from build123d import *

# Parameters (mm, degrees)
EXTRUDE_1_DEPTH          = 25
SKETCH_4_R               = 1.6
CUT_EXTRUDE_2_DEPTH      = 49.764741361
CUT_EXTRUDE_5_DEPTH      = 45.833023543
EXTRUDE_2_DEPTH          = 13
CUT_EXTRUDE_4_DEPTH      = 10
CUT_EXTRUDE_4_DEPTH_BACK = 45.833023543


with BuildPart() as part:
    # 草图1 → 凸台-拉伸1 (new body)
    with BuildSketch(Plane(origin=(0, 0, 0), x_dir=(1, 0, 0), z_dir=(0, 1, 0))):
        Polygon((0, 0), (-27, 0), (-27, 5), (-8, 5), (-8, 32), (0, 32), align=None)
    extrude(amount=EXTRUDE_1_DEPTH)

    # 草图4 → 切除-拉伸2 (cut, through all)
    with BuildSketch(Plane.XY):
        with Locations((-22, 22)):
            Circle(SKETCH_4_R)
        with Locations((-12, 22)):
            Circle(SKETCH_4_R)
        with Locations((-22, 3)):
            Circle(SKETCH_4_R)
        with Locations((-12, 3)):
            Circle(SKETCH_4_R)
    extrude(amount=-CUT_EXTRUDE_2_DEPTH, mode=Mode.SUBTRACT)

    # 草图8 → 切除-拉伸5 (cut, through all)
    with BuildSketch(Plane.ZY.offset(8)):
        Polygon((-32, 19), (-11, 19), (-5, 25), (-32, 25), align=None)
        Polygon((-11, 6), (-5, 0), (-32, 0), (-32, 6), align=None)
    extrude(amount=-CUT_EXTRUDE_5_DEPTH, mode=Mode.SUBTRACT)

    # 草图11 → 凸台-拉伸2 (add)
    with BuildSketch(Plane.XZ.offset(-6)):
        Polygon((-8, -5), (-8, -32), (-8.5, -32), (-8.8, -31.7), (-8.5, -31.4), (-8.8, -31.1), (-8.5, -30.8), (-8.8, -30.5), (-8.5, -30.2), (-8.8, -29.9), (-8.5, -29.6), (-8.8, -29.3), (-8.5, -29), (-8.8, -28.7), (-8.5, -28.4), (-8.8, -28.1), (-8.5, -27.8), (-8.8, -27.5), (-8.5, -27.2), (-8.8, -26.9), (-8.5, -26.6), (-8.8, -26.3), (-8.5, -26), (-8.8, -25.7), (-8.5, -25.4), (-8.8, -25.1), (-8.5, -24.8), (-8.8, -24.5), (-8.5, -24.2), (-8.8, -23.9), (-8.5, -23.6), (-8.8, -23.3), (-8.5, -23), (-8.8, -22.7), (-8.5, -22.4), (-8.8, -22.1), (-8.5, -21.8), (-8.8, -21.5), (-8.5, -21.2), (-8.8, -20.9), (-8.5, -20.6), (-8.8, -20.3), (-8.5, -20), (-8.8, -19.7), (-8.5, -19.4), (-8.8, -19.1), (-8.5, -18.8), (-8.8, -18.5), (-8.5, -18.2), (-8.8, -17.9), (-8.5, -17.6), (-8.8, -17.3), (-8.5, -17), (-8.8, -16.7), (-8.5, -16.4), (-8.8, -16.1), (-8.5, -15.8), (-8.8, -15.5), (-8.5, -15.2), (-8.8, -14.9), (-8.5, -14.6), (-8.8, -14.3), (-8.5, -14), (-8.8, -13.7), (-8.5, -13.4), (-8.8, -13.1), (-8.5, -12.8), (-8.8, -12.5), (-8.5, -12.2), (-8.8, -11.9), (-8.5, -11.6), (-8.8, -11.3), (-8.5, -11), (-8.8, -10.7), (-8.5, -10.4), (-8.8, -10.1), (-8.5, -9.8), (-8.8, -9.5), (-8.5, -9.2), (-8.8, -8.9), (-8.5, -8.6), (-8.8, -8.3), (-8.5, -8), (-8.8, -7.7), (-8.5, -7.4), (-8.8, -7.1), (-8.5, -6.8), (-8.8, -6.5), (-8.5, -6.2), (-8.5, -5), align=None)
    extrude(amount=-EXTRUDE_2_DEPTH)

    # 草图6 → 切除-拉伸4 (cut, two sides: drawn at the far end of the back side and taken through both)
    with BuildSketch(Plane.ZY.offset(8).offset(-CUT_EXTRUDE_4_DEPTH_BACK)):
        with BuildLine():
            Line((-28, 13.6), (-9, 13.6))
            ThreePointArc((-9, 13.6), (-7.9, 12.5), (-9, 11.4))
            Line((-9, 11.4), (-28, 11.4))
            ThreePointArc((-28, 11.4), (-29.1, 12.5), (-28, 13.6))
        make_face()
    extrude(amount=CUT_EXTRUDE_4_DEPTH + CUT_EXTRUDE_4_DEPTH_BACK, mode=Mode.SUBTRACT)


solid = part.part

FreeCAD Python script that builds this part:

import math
import FreeCAD as App
import Part
import Sketcher
from FreeCAD import Vector

doc = App.newDocument("Part")
body = doc.addObject("PartDesign::Body", "Body")

# Sketch on XZ plane
sketch1 = body.newObject("Sketcher::SketchObject", "Sketch")
sketch1.AttachmentSupport = (doc.getObject("XZ_Plane"), [""])
sketch1.MapMode = "FlatFace"
sketch1.addGeometry(Part.LineSegment(Vector(-27, 0, 0), Vector(0, 0, 0)), False)
sketch1.addGeometry(Part.LineSegment(Vector(0, 0, 0), Vector(0, -32, 0)), False)
sketch1.addGeometry(Part.LineSegment(Vector(0, -32, 0), Vector(-8, -32, 0)), False)
sketch1.addGeometry(Part.LineSegment(Vector(-8, -32, 0), Vector(-8, -5, 0)), False)
sketch1.addGeometry(Part.LineSegment(Vector(-8, -5, 0), Vector(-27, -5, 0)), False)
sketch1.addGeometry(Part.LineSegment(Vector(-27, -5, 0), Vector(-27, 0, 0)), False)
sketch1.addConstraint(Sketcher.Constraint("Coincident", 0, 2, 1, 1))
sketch1.addConstraint(Sketcher.Constraint("Coincident", 1, 2, 2, 1))
sketch1.addConstraint(Sketcher.Constraint("Coincident", 2, 2, 3, 1))
sketch1.addConstraint(Sketcher.Constraint("Coincident", 3, 2, 4, 1))
sketch1.addConstraint(Sketcher.Constraint("Coincident", 4, 2, 5, 1))
sketch1.addConstraint(Sketcher.Constraint("Coincident", 5, 2, 0, 1))
sketch1.addConstraint(Sketcher.Constraint("Horizontal", 0))
sketch1.addConstraint(Sketcher.Constraint("Vertical", 1))
sketch1.addConstraint(Sketcher.Constraint("Horizontal", 2))
sketch1.addConstraint(Sketcher.Constraint("Vertical", 3))
sketch1.addConstraint(Sketcher.Constraint("Horizontal", 4))
sketch1.addConstraint(Sketcher.Constraint("Vertical", 5))
sketch1.addConstraint(Sketcher.Constraint("Coincident", 0, 2, -1, 1))
sketch1.addConstraint(Sketcher.Constraint("Equal", 0, 3))
sketch1.addConstraint(Sketcher.Constraint("DistanceX", 0, 1, 0, 2, 27.0))
sketch1.addConstraint(Sketcher.Constraint("DistanceX", 2, 2, 2, 1, 8.0))
sketch1.addConstraint(Sketcher.Constraint("DistanceY", 1, 2, 1, 1, 32.0))
pad1 = body.newObject("PartDesign::Pad", "Pad")
pad1.Profile = sketch1
pad1.Length = 25
pad1.Reversed = True

# Sketch on XY plane
sketch2 = body.newObject("Sketcher::SketchObject", "Sketch001")
sketch2.AttachmentSupport = (doc.getObject("XY_Plane"), [""])
sketch2.MapMode = "FlatFace"
sketch2.addGeometry(Part.Circle(Vector(-22, 22, 0), Vector(0, 0, 1), 1.6), False)
sketch2.addGeometry(Part.Circle(Vector(-12, 22, 0), Vector(0, 0, 1), 1.6), False)
sketch2.addGeometry(Part.Circle(Vector(-22, 3, 0), Vector(0, 0, 1), 1.6), False)
sketch2.addGeometry(Part.Circle(Vector(-12, 3, 0), Vector(0, 0, 1), 1.6), False)
sketch2.addConstraint(Sketcher.Constraint("Equal", 0, 1))
sketch2.addConstraint(Sketcher.Constraint("Equal", 1, 2))
sketch2.addConstraint(Sketcher.Constraint("Equal", 2, 3))
sketch2.addConstraint(Sketcher.Constraint("Horizontal", 0, 3, 1, 3))
sketch2.addConstraint(Sketcher.Constraint("Horizontal", 2, 3, 3, 3))
sketch2.addConstraint(Sketcher.Constraint("Vertical", 0, 3, 2, 3))
sketch2.addConstraint(Sketcher.Constraint("Vertical", 1, 3, 3, 3))
sketch2.addConstraint(Sketcher.Constraint("Diameter", 0, 3.2))
sketch2.addConstraint(Sketcher.Constraint("DistanceX", 0, 3, -1, 1, 22.0))
sketch2.addConstraint(Sketcher.Constraint("DistanceY", -1, 1, 0, 3, 22.0))
sketch2.addConstraint(Sketcher.Constraint("DistanceX", 1, 3, -1, 1, 12.0))
sketch2.addConstraint(Sketcher.Constraint("DistanceY", -1, 1, 2, 3, 3.0))
pocket1 = body.newObject("PartDesign::Pocket", "Pocket")
pocket1.Profile = sketch2
pocket1.Type = "ThroughAll"

# Sketch on YZ plane
sketch3 = body.newObject("Sketcher::SketchObject", "Sketch002")
sketch3.AttachmentSupport = (doc.getObject("YZ_Plane"), [""])
sketch3.MapMode = "FlatFace"
sketch3.AttachmentOffset = App.Placement(Vector(0, 0, -8), App.Rotation())
sketch3.addGeometry(Part.LineSegment(Vector(19, -32, 0), Vector(19, -11, 0)), False)
sketch3.addGeometry(Part.LineSegment(Vector(19, -11, 0), Vector(25, -5, 0)), False)
sketch3.addGeometry(Part.LineSegment(Vector(25, -5, 0), Vector(25, -32, 0)), False)
sketch3.addGeometry(Part.LineSegment(Vector(25, -32, 0), Vector(19, -32, 0)), False)
sketch3.addGeometry(Part.LineSegment(Vector(0, -5, 0), Vector(6, -11, 0)), False)
sketch3.addGeometry(Part.LineSegment(Vector(6, -11, 0), Vector(6, -32, 0)), False)
sketch3.addGeometry(Part.LineSegment(Vector(6, -32, 0), Vector(0, -32, 0)), False)
sketch3.addGeometry(Part.LineSegment(Vector(0, -32, 0), Vector(0, -5, 0)), False)
sketch3.addConstraint(Sketcher.Constraint("Coincident", 0, 2, 1, 1))
sketch3.addConstraint(Sketcher.Constraint("Coincident", 1, 2, 2, 1))
sketch3.addConstraint(Sketcher.Constraint("Coincident", 2, 2, 3, 1))
sketch3.addConstraint(Sketcher.Constraint("Coincident", 3, 2, 0, 1))
sketch3.addConstraint(Sketcher.Constraint("Coincident", 4, 2, 5, 1))
sketch3.addConstraint(Sketcher.Constraint("Coincident", 5, 2, 6, 1))
sketch3.addConstraint(Sketcher.Constraint("Coincident", 6, 2, 7, 1))
sketch3.addConstraint(Sketcher.Constraint("Coincident", 7, 2, 4, 1))
sketch3.addConstraint(Sketcher.Constraint("Vertical", 0))
sketch3.addConstraint(Sketcher.Constraint("Vertical", 2))
sketch3.addConstraint(Sketcher.Constraint("Horizontal", 3))
sketch3.addConstraint(Sketcher.Constraint("Vertical", 5))
sketch3.addConstraint(Sketcher.Constraint("Horizontal", 6))
sketch3.addConstraint(Sketcher.Constraint("Vertical", 7))
sketch3.addConstraint(Sketcher.Constraint("PointOnObject", 6, 2, -2))
sketch3.addConstraint(Sketcher.Constraint("Perpendicular", 1, 4))
sketch3.addConstraint(Sketcher.Constraint("Horizontal", 0, 2, 4, 2))
sketch3.addConstraint(Sketcher.Constraint("Horizontal", 3, 2, 5, 2))
sketch3.addConstraint(Sketcher.Constraint("Horizontal", 1, 2, 7, 2))
sketch3.addConstraint(Sketcher.Constraint("Equal", 3, 6))
sketch3.addConstraint(Sketcher.Constraint("DistanceX", 3, 2, 3, 1, 6.0))
sketch3.addConstraint(Sketcher.Constraint("DistanceY", 0, 1, 0, 2, 21.0))
sketch3.addConstraint(Sketcher.Constraint("DistanceX", -1, 1, 0, 2, 19.0))
sketch3.addConstraint(Sketcher.Constraint("DistanceY", 0, 2, -1, 1, 11.0))
pocket2 = body.newObject("PartDesign::Pocket", "Pocket001")
pocket2.Profile = sketch3
pocket2.Type = "ThroughAll"
pocket2.Reversed = True

# Sketch on XZ plane
sketch4 = body.newObject("Sketcher::SketchObject", "Sketch003")
sketch4.AttachmentSupport = (doc.getObject("XZ_Plane"), [""])
sketch4.MapMode = "FlatFace"
sketch4.AttachmentOffset = App.Placement(Vector(0, 0, -6), App.Rotation())
sketch4.addGeometry(Part.LineSegment(Vector(-8, -32, 0), Vector(-8, -5, 0)), False)
sketch4.addGeometry(Part.LineSegment(Vector(-8, -5, 0), Vector(-8.5, -5, 0)), False)
sketch4.addGeometry(Part.LineSegment(Vector(-8.5, -5, 0), Vector(-8.5, -6.2, 0)), False)
sketch4.addGeometry(Part.LineSegment(Vector(-8.5, -6.2, 0), Vector(-8.8, -6.5, 0)), False)
sketch4.addGeometry(Part.LineSegment(Vector(-8.8, -6.5, 0), Vector(-8.5, -6.8, 0)), False)
sketch4.addGeometry(Part.LineSegment(Vector(-8.5, -6.8, 0), Vector(-8.8, -7.1, 0)), False)
sketch4.addGeometry(Part.LineSegment(Vector(-8.8, -7.1, 0), Vector(-8.5, -7.4, 0)), False)
sketch4.addGeometry(Part.LineSegment(Vector(-8.5, -7.4, 0), Vector(-8.8, -7.7, 0)), False)
sketch4.addGeometry(Part.LineSegment(Vector(-8.8, -7.7, 0), Vector(-8.5, -8, 0)), False)
sketch4.addGeometry(Part.LineSegment(Vector(-8.5, -8, 0), Vector(-8.8, -8.3, 0)), False)
sketch4.addGeometry(Part.LineSegment(Vector(-8.8, -8.3, 0), Vector(-8.5, -8.6, 0)), False)
sketch4.addGeometry(Part.LineSegment(Vector(-8.5, -8.6, 0), Vector(-8.8, -8.9, 0)), False)
sketch4.addGeometry(Part.LineSegment(Vector(-8.8, -8.9, 0), Vector(-8.5, -9.2, 0)), False)
sketch4.addGeometry(Part.LineSegment(Vector(-8.5, -9.2, 0), Vector(-8.8, -9.5, 0)), False)
sketch4.addGeometry(Part.LineSegment(Vector(-8.8, -9.5, 0), Vector(-8.5, -9.8, 0)), False)
sketch4.addGeometry(Part.LineSegment(Vector(-8.5, -9.8, 0), Vector(-8.8, -10.1, 0)), False)
sketch4.addGeometry(Part.LineSegment(Vector(-8.8, -10.1, 0), Vector(-8.5, -10.4, 0)), False)
sketch4.addGeometry(Part.LineSegment(Vector(-8.5, -10.4, 0), Vector(-8.8, -10.7, 0)), False)
sketch4.addGeometry(Part.LineSegment(Vector(-8.8, -10.7, 0), Vector(-8.5, -11, 0)), False)
sketch4.addGeometry(Part.LineSegment(Vector(-8.5, -11, 0), Vector(-8.8, -11.3, 0)), False)
sketch4.addGeometry(Part.LineSegment(Vector(-8.8, -11.3, 0), Vector(-8.5, -11.6, 0)), False)
sketch4.addGeometry(Part.LineSegment(Vector(-8.5, -11.6, 0), Vector(-8.8, -11.9, 0)), False)
sketch4.addGeometry(Part.LineSegment(Vector(-8.8, -11.9, 0), Vector(-8.5, -12.2, 0)), False)
sketch4.addGeometry(Part.LineSegment(Vector(-8.5, -12.2, 0), Vector(-8.8, -12.5, 0)), False)
sketch4.addGeometry(Part.LineSegment(Vector(-8.8, -12.5, 0), Vector(-8.5, -12.8, 0)), False)
sketch4.addGeometry(Part.LineSegment(Vector(-8.5, -12.8, 0), Vector(-8.8, -13.1, 0)), False)
sketch4.addGeometry(Part.LineSegment(Vector(-8.8, -13.1, 0), Vector(-8.5, -13.4, 0)), False)
sketch4.addGeometry(Part.LineSegment(Vector(-8.5, -13.4, 0), Vector(-8.8, -13.7, 0)), False)
sketch4.addGeometry(Part.LineSegment(Vector(-8.8, -13.7, 0), Vector(-8.5, -14, 0)), False)
sketch4.addGeometry(Part.LineSegment(Vector(-8.5, -14, 0), Vector(-8.8, -14.3, 0)), False)
sketch4.addGeometry(Part.LineSegment(Vector(-8.8, -14.3, 0), Vector(-8.5, -14.6, 0)), False)
sketch4.addGeometry(Part.LineSegment(Vector(-8.5, -14.6, 0), Vector(-8.8, -14.9, 0)), False)
sketch4.addGeometry(Part.LineSegment(Vector(-8.8, -14.9, 0), Vector(-8.5, -15.2, 0)), False)
sketch4.addGeometry(Part.LineSegment(Vector(-8.5, -15.2, 0), Vector(-8.8, -15.5, 0)), False)
sketch4.addGeometry(Part.LineSegment(Vector(-8.8, -15.5, 0), Vector(-8.5, -15.8, 0)), False)
sketch4.addGeometry(Part.LineSegment(Vector(-8.5, -15.8, 0), Vector(-8.8, -16.1, 0)), False)
sketch4.addGeometry(Part.LineSegment(Vector(-8.8, -16.1, 0), Vector(-8.5, -16.4, 0)), False)
sketch4.addGeometry(Part.LineSegment(Vector(-8.5, -16.4, 0), Vector(-8.8, -16.7, 0)), False)
sketch4.addGeometry(Part.LineSegment(Vector(-8.8, -16.7, 0), Vector(-8.5, -17, 0)), False)
sketch4.addGeometry(Part.LineSegment(Vector(-8.5, -17, 0), Vector(-8.8, -17.3, 0)), False)
sketch4.addGeometry(Part.LineSegment(Vector(-8.8, -17.3, 0), Vector(-8.5, -17.6, 0)), False)
sketch4.addGeometry(Part.LineSegment(Vector(-8.5, -17.6, 0), Vector(-8.8, -17.9, 0)), False)
sketch4.addGeometry(Part.LineSegment(Vector(-8.8, -17.9, 0), Vector(-8.5, -18.2, 0)), False)
sketch4.addGeometry(Part.LineSegment(Vector(-8.5, -18.2, 0), Vector(-8.8, -18.5, 0)), False)
sketch4.addGeometry(Part.LineSegment(Vector(-8.8, -18.5, 0), Vector(-8.5, -18.8, 0)), False)
sketch4.addGeometry(Part.LineSegment(Vector(-8.5, -18.8, 0), Vector(-8.8, -19.1, 0)), False)
sketch4.addGeometry(Part.LineSegment(Vector(-8.8, -19.1, 0), Vector(-8.5, -19.4, 0)), False)
sketch4.addGeometry(Part.LineSegment(Vector(-8.5, -19.4, 0), Vector(-8.8, -19.7, 0)), False)
sketch4.addGeometry(Part.LineSegment(Vector(-8.8, -19.7, 0), Vector(-8.5, -20, 0)), False)
sketch4.addGeometry(Part.LineSegment(Vector(-8.5, -20, 0), Vector(-8.8, -20.3, 0)), False)
sketch4.addGeometry(Part.LineSegment(Vector(-8.8, -20.3, 0), Vector(-8.5, -20.6, 0)), False)
sketch4.addGeometry(Part.LineSegment(Vector(-8.5, -20.6, 0), Vector(-8.8, -20.9, 0)), False)
sketch4.addGeometry(Part.LineSegment(Vector(-8.8, -20.9, 0), Vector(-8.5, -21.2, 0)), False)
sketch4.addGeometry(Part.LineSegment(Vector(-8.5, -21.2, 0), Vector(-8.8, -21.5, 0)), False)
sketch4.addGeometry(Part.LineSegment(Vector(-8.8, -21.5, 0), Vector(-8.5, -21.8, 0)), False)
sketch4.addGeometry(Part.LineSegment(Vector(-8.5, -21.8, 0), Vector(-8.8, -22.1, 0)), False)
sketch4.addGeometry(Part.LineSegment(Vector(-8.8, -22.1, 0), Vector(-8.5, -22.4, 0)), False)
sketch4.addGeometry(Part.LineSegment(Vector(-8.5, -22.4, 0), Vector(-8.8, -22.7, 0)), False)
sketch4.addGeometry(Part.LineSegment(Vector(-8.8, -22.7, 0), Vector(-8.5, -23, 0)), False)
sketch4.addGeometry(Part.LineSegment(Vector(-8.5, -23, 0), Vector(-8.8, -23.3, 0)), False)
sketch4.addGeometry(Part.LineSegment(Vector(-8.8, -23.3, 0), Vector(-8.5, -23.6, 0)), False)
sketch4.addGeometry(Part.LineSegment(Vector(-8.5, -23.6, 0), Vector(-8.8, -23.9, 0)), False)
sketch4.addGeometry(Part.LineSegment(Vector(-8.8, -23.9, 0), Vector(-8.5, -24.2, 0)), False)
sketch4.addGeometry(Part.LineSegment(Vector(-8.5, -24.2, 0), Vector(-8.8, -24.5, 0)), False)
sketch4.addGeometry(Part.LineSegment(Vector(-8.8, -24.5, 0), Vector(-8.5, -24.8, 0)), False)
sketch4.addGeometry(Part.LineSegment(Vector(-8.5, -24.8, 0), Vector(-8.8, -25.1, 0)), False)
sketch4.addGeometry(Part.LineSegment(Vector(-8.8, -25.1, 0), Vector(-8.5, -25.4, 0)), False)
sketch4.addGeometry(Part.LineSegment(Vector(-8.5, -25.4, 0), Vector(-8.8, -25.7, 0)), False)
sketch4.addGeometry(Part.LineSegment(Vector(-8.8, -25.7, 0), Vector(-8.5, -26, 0)), False)
sketch4.addGeometry(Part.LineSegment(Vector(-8.5, -26, 0), Vector(-8.8, -26.3, 0)), False)
sketch4.addGeometry(Part.LineSegment(Vector(-8.8, -26.3, 0), Vector(-8.5, -26.6, 0)), False)
sketch4.addGeometry(Part.LineSegment(Vector(-8.5, -26.6, 0), Vector(-8.8, -26.9, 0)), False)
sketch4.addGeometry(Part.LineSegment(Vector(-8.8, -26.9, 0), Vector(-8.5, -27.2, 0)), False)
sketch4.addGeometry(Part.LineSegment(Vector(-8.5, -27.2, 0), Vector(-8.8, -27.5, 0)), False)
sketch4.addGeometry(Part.LineSegment(Vector(-8.8, -27.5, 0), Vector(-8.5, -27.8, 0)), False)
sketch4.addGeometry(Part.LineSegment(Vector(-8.5, -27.8, 0), Vector(-8.8, -28.1, 0)), False)
sketch4.addGeometry(Part.LineSegment(Vector(-8.8, -28.1, 0), Vector(-8.5, -28.4, 0)), False)
sketch4.addGeometry(Part.LineSegment(Vector(-8.5, -28.4, 0), Vector(-8.8, -28.7, 0)), False)
sketch4.addGeometry(Part.LineSegment(Vector(-8.8, -28.7, 0), Vector(-8.5, -29, 0)), False)
sketch4.addGeometry(Part.LineSegment(Vector(-8.5, -29, 0), Vector(-8.8, -29.3, 0)), False)
sketch4.addGeometry(Part.LineSegment(Vector(-8.8, -29.3, 0), Vector(-8.5, -29.6, 0)), False)
sketch4.addGeometry(Part.LineSegment(Vector(-8.5, -29.6, 0), Vector(-8.8, -29.9, 0)), False)
sketch4.addGeometry(Part.LineSegment(Vector(-8.8, -29.9, 0), Vector(-8.5, -30.2, 0)), False)
sketch4.addGeometry(Part.LineSegment(Vector(-8.5, -30.2, 0), Vector(-8.8, -30.5, 0)), False)
sketch4.addGeometry(Part.LineSegment(Vector(-8.8, -30.5, 0), Vector(-8.5, -30.8, 0)), False)
sketch4.addGeometry(Part.LineSegment(Vector(-8.5, -30.8, 0), Vector(-8.8, -31.1, 0)), False)
sketch4.addGeometry(Part.LineSegment(Vector(-8.8, -31.1, 0), Vector(-8.5, -31.4, 0)), False)
sketch4.addGeometry(Part.LineSegment(Vector(-8.5, -31.4, 0), Vector(-8.8, -31.7, 0)), False)
sketch4.addGeometry(Part.LineSegment(Vector(-8.8, -31.7, 0), Vector(-8.5, -32, 0)), False)
sketch4.addGeometry(Part.LineSegment(Vector(-8.5, -32, 0), Vector(-8, -32, 0)), False)
sketch4.addConstraint(Sketcher.Constraint("Coincident", 0, 2, 1, 1))
sketch4.addConstraint(Sketcher.Constraint("Coincident", 1, 2, 2, 1))
sketch4.addConstraint(Sketcher.Constraint("Coincident", 2, 2, 3, 1))
sketch4.addConstraint(Sketcher.Constraint("Coincident", 3, 2, 4, 1))
sketch4.addConstraint(Sketcher.Constraint("Coincident", 4, 2, 5, 1))
sketch4.addConstraint(Sketcher.Constraint("Coincident", 5, 2, 6, 1))
sketch4.addConstraint(Sketcher.Constraint("Coincident", 6, 2, 7, 1))
sketch4.addConstraint(Sketcher.Constraint("Coincident", 7, 2, 8, 1))
sketch4.addConstraint(Sketcher.Constraint("Coincident", 8, 2, 9, 1))
sketch4.addConstraint(Sketcher.Constraint("Coincident", 9, 2, 10, 1))
sketch4.addConstraint(Sketcher.Constraint("Coincident", 10, 2, 11, 1))
sketch4.addConstraint(Sketcher.Constraint("Coincident", 11, 2, 12, 1))
sketch4.addConstraint(Sketcher.Constraint("Coincident", 12, 2, 13, 1))
sketch4.addConstraint(Sketcher.Constraint("Coincident", 13, 2, 14, 1))
sketch4.addConstraint(Sketcher.Constraint("Coincident", 14, 2, 15, 1))
sketch4.addConstraint(Sketcher.Constraint("Coincident", 15, 2, 16, 1))
sketch4.addConstraint(Sketcher.Constraint("Coincident", 16, 2, 17, 1))
sketch4.addConstraint(Sketcher.Constraint("Coincident", 17, 2, 18, 1))
sketch4.addConstraint(Sketcher.Constraint("Coincident", 18, 2, 19, 1))
sketch4.addConstraint(Sketcher.Constraint("Coincident", 19, 2, 20, 1))
sketch4.addConstraint(Sketcher.Constraint("Coincident", 20, 2, 21, 1))
sketch4.addConstraint(Sketcher.Constraint("Coincident", 21, 2, 22, 1))
sketch4.addConstraint(Sketcher.Constraint("Coincident", 22, 2, 23, 1))
sketch4.addConstraint(Sketcher.Constraint("Coincident", 23, 2, 24, 1))
sketch4.addConstraint(Sketcher.Constraint("Coincident", 24, 2, 25, 1))
sketch4.addConstraint(Sketcher.Constraint("Coincident", 25, 2, 26, 1))
sketch4.addConstraint(Sketcher.Constraint("Coincident", 26, 2, 27, 1))
sketch4.addConstraint(Sketcher.Constraint("Coincident", 27, 2, 28, 1))
sketch4.addConstraint(Sketcher.Constraint("Coincident", 28, 2, 29, 1))
sketch4.addConstraint(Sketcher.Constraint("Coincident", 29, 2, 30, 1))
sketch4.addConstraint(Sketcher.Constraint("Coincident", 30, 2, 31, 1))
sketch4.addConstraint(Sketcher.Constraint("Coincident", 31, 2, 32, 1))
sketch4.addConstraint(Sketcher.Constraint("Coincident", 32, 2, 33, 1))
sketch4.addConstraint(Sketcher.Constraint("Coincident", 33, 2, 34, 1))
sketch4.addConstraint(Sketcher.Constraint("Coincident", 34, 2, 35, 1))
sketch4.addConstraint(Sketcher.Constraint("Coincident", 35, 2, 36, 1))
sketch4.addConstraint(Sketcher.Constraint("Coincident", 36, 2, 37, 1))
sketch4.addConstraint(Sketcher.Constraint("Coincident", 37, 2, 38, 1))
sketch4.addConstraint(Sketcher.Constraint("Coincident", 38, 2, 39, 1))
sketch4.addConstraint(Sketcher.Constraint("Coincident", 39, 2, 40, 1))
sketch4.addConstraint(Sketcher.Constraint("Coincident", 40, 2, 41, 1))
sketch4.addConstraint(Sketcher.Constraint("Coincident", 41, 2, 42, 1))
sketch4.addConstraint(Sketcher.Constraint("Coincident", 42, 2, 43, 1))
sketch4.addConstraint(Sketcher.Constraint("Coincident", 43, 2, 44, 1))
sketch4.addConstraint(Sketcher.Constraint("Coincident", 44, 2, 45, 1))
sketch4.addConstraint(Sketcher.Constraint("Coincident", 45, 2, 46, 1))
sketch4.addConstraint(Sketcher.Constraint("Coincident", 46, 2, 47, 1))
sketch4.addConstraint(Sketcher.Constraint("Coincident", 47, 2, 48, 1))
sketch4.addConstraint(Sketcher.Constraint("Coincident", 48, 2, 49, 1))
sketch4.addConstraint(Sketcher.Constraint("Coincident", 49, 2, 50, 1))
sketch4.addConstraint(Sketcher.Constraint("Coincident", 50, 2, 51, 1))
sketch4.addConstraint(Sketcher.Constraint("Coincident", 51, 2, 52, 1))
sketch4.addConstraint(Sketcher.Constraint("Coincident", 52, 2, 53, 1))
sketch4.addConstraint(Sketcher.Constraint("Coincident", 53, 2, 54, 1))
sketch4.addConstraint(Sketcher.Constraint("Coincident", 54, 2, 55, 1))
sketch4.addConstraint(Sketcher.Constraint("Coincident", 55, 2, 56, 1))
sketch4.addConstraint(Sketcher.Constraint("Coincident", 56, 2, 57, 1))
sketch4.addConstraint(Sketcher.Constraint("Coincident", 57, 2, 58, 1))
sketch4.addConstraint(Sketcher.Constraint("Coincident", 58, 2, 59, 1))
sketch4.addConstraint(Sketcher.Constraint("Coincident", 59, 2, 60, 1))
sketch4.addConstraint(Sketcher.Constraint("Coincident", 60, 2, 61, 1))
sketch4.addConstraint(Sketcher.Constraint("Coincident", 61, 2, 62, 1))
sketch4.addConstraint(Sketcher.Constraint("Coincident", 62, 2, 63, 1))
sketch4.addConstraint(Sketcher.Constraint("Coincident", 63, 2, 64, 1))
sketch4.addConstraint(Sketcher.Constraint("Coincident", 64, 2, 65, 1))
sketch4.addConstraint(Sketcher.Constraint("Coincident", 65, 2, 66, 1))
sketch4.addConstraint(Sketcher.Constraint("Coincident", 66, 2, 67, 1))
sketch4.addConstraint(Sketcher.Constraint("Coincident", 67, 2, 68, 1))
sketch4.addConstraint(Sketcher.Constraint("Coincident", 68, 2, 69, 1))
sketch4.addConstraint(Sketcher.Constraint("Coincident", 69, 2, 70, 1))
sketch4.addConstraint(Sketcher.Constraint("Coincident", 70, 2, 71, 1))
sketch4.addConstraint(Sketcher.Constraint("Coincident", 71, 2, 72, 1))
sketch4.addConstraint(Sketcher.Constraint("Coincident", 72, 2, 73, 1))
sketch4.addConstraint(Sketcher.Constraint("Coincident", 73, 2, 74, 1))
sketch4.addConstraint(Sketcher.Constraint("Coincident", 74, 2, 75, 1))
sketch4.addConstraint(Sketcher.Constraint("Coincident", 75, 2, 76, 1))
sketch4.addConstraint(Sketcher.Constraint("Coincident", 76, 2, 77, 1))
sketch4.addConstraint(Sketcher.Constraint("Coincident", 77, 2, 78, 1))
sketch4.addConstraint(Sketcher.Constraint("Coincident", 78, 2, 79, 1))
sketch4.addConstraint(Sketcher.Constraint("Coincident", 79, 2, 80, 1))
sketch4.addConstraint(Sketcher.Constraint("Coincident", 80, 2, 81, 1))
sketch4.addConstraint(Sketcher.Constraint("Coincident", 81, 2, 82, 1))
sketch4.addConstraint(Sketcher.Constraint("Coincident", 82, 2, 83, 1))
sketch4.addConstraint(Sketcher.Constraint("Coincident", 83, 2, 84, 1))
sketch4.addConstraint(Sketcher.Constraint("Coincident", 84, 2, 85, 1))
sketch4.addConstraint(Sketcher.Constraint("Coincident", 85, 2, 86, 1))
sketch4.addConstraint(Sketcher.Constraint("Coincident", 86, 2, 87, 1))
sketch4.addConstraint(Sketcher.Constraint("Coincident", 87, 2, 88, 1))
sketch4.addConstraint(Sketcher.Constraint("Coincident", 88, 2, 89, 1))
sketch4.addConstraint(Sketcher.Constraint("Coincident", 89, 2, 0, 1))
sketch4.addConstraint(Sketcher.Constraint("Vertical", 0))
sketch4.addConstraint(Sketcher.Constraint("Horizontal", 1))
sketch4.addConstraint(Sketcher.Constraint("Vertical", 2))
sketch4.addConstraint(Sketcher.Constraint("Horizontal", 89))
sketch4.addConstraint(Sketcher.Constraint("Perpendicular", 3, 4))
sketch4.addConstraint(Sketcher.Constraint("Perpendicular", 4, 5))
sketch4.addConstraint(Sketcher.Constraint("Perpendicular", 5, 6))
sketch4.addConstraint(Sketcher.Constraint("Perpendicular", 6, 7))
sketch4.addConstraint(Sketcher.Constraint("Perpendicular", 7, 8))
sketch4.addConstraint(Sketcher.Constraint("Perpendicular", 8, 9))
sketch4.addConstraint(Sketcher.Constraint("Perpendicular", 9, 10))
sketch4.addConstraint(Sketcher.Constraint("Perpendicular", 10, 11))
sketch4.addConstraint(Sketcher.Constraint("Perpendicular", 11, 12))
sketch4.addConstraint(Sketcher.Constraint("Perpendicular", 12, 13))
sketch4.addConstraint(Sketcher.Constraint("Perpendicular", 13, 14))
sketch4.addConstraint(Sketcher.Constraint("Perpendicular", 14, 15))
sketch4.addConstraint(Sketcher.Constraint("Perpendicular", 15, 16))
sketch4.addConstraint(Sketcher.Constraint("Perpendicular", 16, 17))
sketch4.addConstraint(Sketcher.Constraint("Perpendicular", 17, 18))
sketch4.addConstraint(Sketcher.Constraint("Perpendicular", 18, 19))
sketch4.addConstraint(Sketcher.Constraint("Perpendicular", 19, 20))
sketch4.addConstraint(Sketcher.Constraint("Perpendicular", 20, 21))
sketch4.addConstraint(Sketcher.Constraint("Perpendicular", 21, 22))
sketch4.addConstraint(Sketcher.Constraint("Perpendicular", 22, 23))
sketch4.addConstraint(Sketcher.Constraint("Perpendicular", 23, 24))
sketch4.addConstraint(Sketcher.Constraint("Perpendicular", 24, 25))
sketch4.addConstraint(Sketcher.Constraint("Perpendicular", 25, 26))
sketch4.addConstraint(Sketcher.Constraint("Perpendicular", 26, 27))
sketch4.addConstraint(Sketcher.Constraint("Perpendicular", 27, 28))
sketch4.addConstraint(Sketcher.Constraint("Perpendicular", 28, 29))
sketch4.addConstraint(Sketcher.Constraint("Perpendicular", 29, 30))
sketch4.addConstraint(Sketcher.Constraint("Perpendicular", 30, 31))
sketch4.addConstraint(Sketcher.Constraint("Perpendicular", 31, 32))
sketch4.addConstraint(Sketcher.Constraint("Perpendicular", 32, 33))
sketch4.addConstraint(Sketcher.Constraint("Perpendicular", 33, 34))
sketch4.addConstraint(Sketcher.Constraint("Perpendicular", 34, 35))
sketch4.addConstraint(Sketcher.Constraint("Perpendicular", 35, 36))
sketch4.addConstraint(Sketcher.Constraint("Perpendicular", 36, 37))
sketch4.addConstraint(Sketcher.Constraint("Perpendicular", 37, 38))
sketch4.addConstraint(Sketcher.Constraint("Perpendicular", 38, 39))
sketch4.addConstraint(Sketcher.Constraint("Perpendicular", 39, 40))
sketch4.addConstraint(Sketcher.Constraint("Perpendicular", 40, 41))
sketch4.addConstraint(Sketcher.Constraint("Perpendicular", 41, 42))
sketch4.addConstraint(Sketcher.Constraint("Perpendicular", 42, 43))
sketch4.addConstraint(Sketcher.Constraint("Perpendicular", 43, 44))
sketch4.addConstraint(Sketcher.Constraint("Perpendicular", 44, 45))
sketch4.addConstraint(Sketcher.Constraint("Perpendicular", 45, 46))
sketch4.addConstraint(Sketcher.Constraint("Perpendicular", 46, 47))
sketch4.addConstraint(Sketcher.Constraint("Perpendicular", 47, 48))
sketch4.addConstraint(Sketcher.Constraint("Perpendicular", 48, 49))
sketch4.addConstraint(Sketcher.Constraint("Perpendicular", 49, 50))
sketch4.addConstraint(Sketcher.Constraint("Perpendicular", 50, 51))
sketch4.addConstraint(Sketcher.Constraint("Perpendicular", 51, 52))
sketch4.addConstraint(Sketcher.Constraint("Perpendicular", 52, 53))
sketch4.addConstraint(Sketcher.Constraint("Perpendicular", 53, 54))
sketch4.addConstraint(Sketcher.Constraint("Perpendicular", 54, 55))
sketch4.addConstraint(Sketcher.Constraint("Perpendicular", 55, 56))
sketch4.addConstraint(Sketcher.Constraint("Perpendicular", 56, 57))
sketch4.addConstraint(Sketcher.Constraint("Perpendicular", 57, 58))
sketch4.addConstraint(Sketcher.Constraint("Perpendicular", 58, 59))
sketch4.addConstraint(Sketcher.Constraint("Perpendicular", 59, 60))
sketch4.addConstraint(Sketcher.Constraint("Perpendicular", 60, 61))
sketch4.addConstraint(Sketcher.Constraint("Perpendicular", 61, 62))
sketch4.addConstraint(Sketcher.Constraint("Perpendicular", 62, 63))
sketch4.addConstraint(Sketcher.Constraint("Perpendicular", 63, 64))
sketch4.addConstraint(Sketcher.Constraint("Perpendicular", 64, 65))
sketch4.addConstraint(Sketcher.Constraint("Perpendicular", 65, 66))
sketch4.addConstraint(Sketcher.Constraint("Perpendicular", 66, 67))
sketch4.addConstraint(Sketcher.Constraint("Perpendicular", 67, 68))
sketch4.addConstraint(Sketcher.Constraint("Perpendicular", 68, 69))
sketch4.addConstraint(Sketcher.Constraint("Perpendicular", 69, 70))
sketch4.addConstraint(Sketcher.Constraint("Perpendicular", 70, 71))
sketch4.addConstraint(Sketcher.Constraint("Perpendicular", 71, 72))
sketch4.addConstraint(Sketcher.Constraint("Perpendicular", 72, 73))
sketch4.addConstraint(Sketcher.Constraint("Perpendicular", 73, 74))
sketch4.addConstraint(Sketcher.Constraint("Perpendicular", 74, 75))
sketch4.addConstraint(Sketcher.Constraint("Perpendicular", 75, 76))
sketch4.addConstraint(Sketcher.Constraint("Perpendicular", 76, 77))
sketch4.addConstraint(Sketcher.Constraint("Perpendicular", 77, 78))
sketch4.addConstraint(Sketcher.Constraint("Perpendicular", 78, 79))
sketch4.addConstraint(Sketcher.Constraint("Perpendicular", 79, 80))
sketch4.addConstraint(Sketcher.Constraint("Perpendicular", 80, 81))
sketch4.addConstraint(Sketcher.Constraint("Perpendicular", 81, 82))
sketch4.addConstraint(Sketcher.Constraint("Perpendicular", 82, 83))
sketch4.addConstraint(Sketcher.Constraint("Perpendicular", 83, 84))
sketch4.addConstraint(Sketcher.Constraint("Perpendicular", 84, 85))
sketch4.addConstraint(Sketcher.Constraint("Perpendicular", 85, 86))
sketch4.addConstraint(Sketcher.Constraint("Perpendicular", 86, 87))
sketch4.addConstraint(Sketcher.Constraint("Perpendicular", 87, 88))
sketch4.addConstraint(Sketcher.Constraint("Vertical", 2, 2, 4, 2))
sketch4.addConstraint(Sketcher.Constraint("Vertical", 3, 2, 5, 2))
sketch4.addConstraint(Sketcher.Constraint("Vertical", 4, 2, 6, 2))
sketch4.addConstraint(Sketcher.Constraint("Vertical", 5, 2, 7, 2))
sketch4.addConstraint(Sketcher.Constraint("Vertical", 6, 2, 8, 2))
sketch4.addConstraint(Sketcher.Constraint("Vertical", 7, 2, 9, 2))
sketch4.addConstraint(Sketcher.Constraint("Vertical", 8, 2, 10, 2))
sketch4.addConstraint(Sketcher.Constraint("Vertical", 9, 2, 11, 2))
sketch4.addConstraint(Sketcher.Constraint("Vertical", 10, 2, 12, 2))
sketch4.addConstraint(Sketcher.Constraint("Vertical", 11, 2, 13, 2))
sketch4.addConstraint(Sketcher.Constraint("Vertical", 12, 2, 14, 2))
sketch4.addConstraint(Sketcher.Constraint("Vertical", 13, 2, 15, 2))
sketch4.addConstraint(Sketcher.Constraint("Vertical", 14, 2, 16, 2))
sketch4.addConstraint(Sketcher.Constraint("Vertical", 15, 2, 17, 2))
sketch4.addConstraint(Sketcher.Constraint("Vertical", 16, 2, 18, 2))
sketch4.addConstraint(Sketcher.Constraint("Vertical", 17, 2, 19, 2))
sketch4.addConstraint(Sketcher.Constraint("Vertical", 18, 2, 20, 2))
sketch4.addConstraint(Sketcher.Constraint("Vertical", 19, 2, 21, 2))
sketch4.addConstraint(Sketcher.Constraint("Vertical", 20, 2, 22, 2))
sketch4.addConstraint(Sketcher.Constraint("Vertical", 21, 2, 23, 2))
sketch4.addConstraint(Sketcher.Constraint("Vertical", 22, 2, 24, 2))
sketch4.addConstraint(Sketcher.Constraint("Vertical", 23, 2, 25, 2))
sketch4.addConstraint(Sketcher.Constraint("Vertical", 24, 2, 26, 2))
sketch4.addConstraint(Sketcher.Constraint("Vertical", 25, 2, 27, 2))
sketch4.addConstraint(Sketcher.Constraint("Vertical", 26, 2, 28, 2))
sketch4.addConstraint(Sketcher.Constraint("Vertical", 27, 2, 29, 2))
sketch4.addConstraint(Sketcher.Constraint("Vertical", 28, 2, 30, 2))
sketch4.addConstraint(Sketcher.Constraint("Vertical", 29, 2, 31, 2))
sketch4.addConstraint(Sketcher.Constraint("Vertical", 30, 2, 32, 2))
sketch4.addConstraint(Sketcher.Constraint("Vertical", 31, 2, 33, 2))
sketch4.addConstraint(Sketcher.Constraint("Vertical", 32, 2, 34, 2))
sketch4.addConstraint(Sketcher.Constraint("Vertical", 33, 2, 35, 2))
sketch4.addConstraint(Sketcher.Constraint("Vertical", 34, 2, 36, 2))
sketch4.addConstraint(Sketcher.Constraint("Vertical", 35, 2, 37, 2))
sketch4.addConstraint(Sketcher.Constraint("Vertical", 36, 2, 38, 2))
sketch4.addConstraint(Sketcher.Constraint("Vertical", 37, 2, 39, 2))
sketch4.addConstraint(Sketcher.Constraint("Vertical", 38, 2, 40, 2))
sketch4.addConstraint(Sketcher.Constraint("Vertical", 39, 2, 41, 2))
sketch4.addConstraint(Sketcher.Constraint("Vertical", 40, 2, 42, 2))
sketch4.addConstraint(Sketcher.Constraint("Vertical", 41, 2, 43, 2))
sketch4.addConstraint(Sketcher.Constraint("Vertical", 42, 2, 44, 2))
sketch4.addConstraint(Sketcher.Constraint("Vertical", 43, 2, 45, 2))
sketch4.addConstraint(Sketcher.Constraint("Vertical", 44, 2, 46, 2))
sketch4.addConstraint(Sketcher.Constraint("Vertical", 45, 2, 47, 2))
sketch4.addConstraint(Sketcher.Constraint("Vertical", 46, 2, 48, 2))
sketch4.addConstraint(Sketcher.Constraint("Vertical", 47, 2, 49, 2))
sketch4.addConstraint(Sketcher.Constraint("Vertical", 48, 2, 50, 2))
sketch4.addConstraint(Sketcher.Constraint("Vertical", 49, 2, 51, 2))
sketch4.addConstraint(Sketcher.Constraint("Vertical", 50, 2, 52, 2))
sketch4.addConstraint(Sketcher.Constraint("Vertical", 51, 2, 53, 2))
sketch4.addConstraint(Sketcher.Constraint("Vertical", 52, 2, 54, 2))
sketch4.addConstraint(Sketcher.Constraint("Vertical", 53, 2, 55, 2))
sketch4.addConstraint(Sketcher.Constraint("Vertical", 54, 2, 56, 2))
sketch4.addConstraint(Sketcher.Constraint("Vertical", 55, 2, 57, 2))
sketch4.addConstraint(Sketcher.Constraint("Vertical", 56, 2, 58, 2))
sketch4.addConstraint(Sketcher.Constraint("Vertical", 57, 2, 59, 2))
sketch4.addConstraint(Sketcher.Constraint("Vertical", 58, 2, 60, 2))
sketch4.addConstraint(Sketcher.Constraint("Vertical", 59, 2, 61, 2))
sketch4.addConstraint(Sketcher.Constraint("Vertical", 60, 2, 62, 2))
sketch4.addConstraint(Sketcher.Constraint("Vertical", 61, 2, 63, 2))
sketch4.addConstraint(Sketcher.Constraint("Vertical", 62, 2, 64, 2))
sketch4.addConstraint(Sketcher.Constraint("Vertical", 63, 2, 65, 2))
sketch4.addConstraint(Sketcher.Constraint("Vertical", 64, 2, 66, 2))
sketch4.addConstraint(Sketcher.Constraint("Vertical", 65, 2, 67, 2))
sketch4.addConstraint(Sketcher.Constraint("Vertical", 66, 2, 68, 2))
sketch4.addConstraint(Sketcher.Constraint("Vertical", 67, 2, 69, 2))
sketch4.addConstraint(Sketcher.Constraint("Vertical", 68, 2, 70, 2))
sketch4.addConstraint(Sketcher.Constraint("Vertical", 69, 2, 71, 2))
sketch4.addConstraint(Sketcher.Constraint("Vertical", 70, 2, 72, 2))
sketch4.addConstraint(Sketcher.Constraint("Vertical", 71, 2, 73, 2))
sketch4.addConstraint(Sketcher.Constraint("Vertical", 72, 2, 74, 2))
sketch4.addConstraint(Sketcher.Constraint("Vertical", 73, 2, 75, 2))
sketch4.addConstraint(Sketcher.Constraint("Vertical", 74, 2, 76, 2))
sketch4.addConstraint(Sketcher.Constraint("Vertical", 75, 2, 77, 2))
sketch4.addConstraint(Sketcher.Constraint("Vertical", 76, 2, 78, 2))
sketch4.addConstraint(Sketcher.Constraint("Vertical", 77, 2, 79, 2))
sketch4.addConstraint(Sketcher.Constraint("Vertical", 78, 2, 80, 2))
sketch4.addConstraint(Sketcher.Constraint("Vertical", 79, 2, 81, 2))
sketch4.addConstraint(Sketcher.Constraint("Vertical", 80, 2, 82, 2))
sketch4.addConstraint(Sketcher.Constraint("Vertical", 81, 2, 83, 2))
sketch4.addConstraint(Sketcher.Constraint("Vertical", 82, 2, 84, 2))
sketch4.addConstraint(Sketcher.Constraint("Vertical", 83, 2, 85, 2))
sketch4.addConstraint(Sketcher.Constraint("Vertical", 84, 2, 86, 2))
sketch4.addConstraint(Sketcher.Constraint("Vertical", 85, 2, 87, 2))
sketch4.addConstraint(Sketcher.Constraint("Vertical", 86, 2, 88, 2))
sketch4.addConstraint(Sketcher.Constraint("Equal", 3, 4))
sketch4.addConstraint(Sketcher.Constraint("DistanceY", 0, 1, 0, 2, 27.0))
sketch4.addConstraint(Sketcher.Constraint("DistanceX", 1, 2, 1, 1, 0.5))
sketch4.addConstraint(Sketcher.Constraint("DistanceY", 2, 2, 2, 1, 1.2))
sketch4.addConstraint(Sketcher.Constraint("DistanceX", 0, 2, -1, 1, 8.0))
sketch4.addConstraint(Sketcher.Constraint("DistanceY", 0, 2, -1, 1, 5.0))
pad2 = body.newObject("PartDesign::Pad", "Pad001")
pad2.Profile = sketch4
pad2.Length = 13
pad2.Reversed = True

# Sketch on YZ plane
sketch5 = body.newObject("Sketcher::SketchObject", "Sketch004")
sketch5.AttachmentSupport = (doc.getObject("YZ_Plane"), [""])
sketch5.MapMode = "FlatFace"
sketch5.AttachmentOffset = App.Placement(Vector(0, 0, -8), App.Rotation())
sketch5.addGeometry(Part.LineSegment(Vector(13.6, -9, 0), Vector(13.6, -28, 0)), False)
sketch5.addGeometry(Part.ArcOfCircle(Part.Circle(Vector(12.5, -28, 0), Vector(0, 0, 1), 1.1), math.radians(180), math.radians(360)), False)
sketch5.addGeometry(Part.LineSegment(Vector(11.4, -28, 0), Vector(11.4, -9, 0)), False)
sketch5.addGeometry(Part.ArcOfCircle(Part.Circle(Vector(12.5, -9, 0), Vector(0, 0, 1), 1.1), math.radians(0), math.radians(180)), False)
sketch5.addConstraint(Sketcher.Constraint("Tangent", 0, 2, 1, 2))
sketch5.addConstraint(Sketcher.Constraint("Tangent", 1, 1, 2, 1))
sketch5.addConstraint(Sketcher.Constraint("Tangent", 2, 2, 3, 2))
sketch5.addConstraint(Sketcher.Constraint("Tangent", 3, 1, 0, 1))
sketch5.addConstraint(Sketcher.Constraint("Vertical", 0))
sketch5.addConstraint(Sketcher.Constraint("Vertical", 2))
sketch5.addConstraint(Sketcher.Constraint("Radius", 1, 1.1))
sketch5.addConstraint(Sketcher.Constraint("DistanceY", 0, 2, 0, 1, 19.0))
sketch5.addConstraint(Sketcher.Constraint("DistanceY", 1, 3, -1, 1, 28.0))
sketch5.addConstraint(Sketcher.Constraint("DistanceX", -1, 1, 1, 3, 12.5))
pocket3 = body.newObject("PartDesign::Pocket", "Pocket002")
pocket3.Profile = sketch5
pocket3.Type = "ThroughAll"
pocket3.Midplane = True

doc.recompute()
